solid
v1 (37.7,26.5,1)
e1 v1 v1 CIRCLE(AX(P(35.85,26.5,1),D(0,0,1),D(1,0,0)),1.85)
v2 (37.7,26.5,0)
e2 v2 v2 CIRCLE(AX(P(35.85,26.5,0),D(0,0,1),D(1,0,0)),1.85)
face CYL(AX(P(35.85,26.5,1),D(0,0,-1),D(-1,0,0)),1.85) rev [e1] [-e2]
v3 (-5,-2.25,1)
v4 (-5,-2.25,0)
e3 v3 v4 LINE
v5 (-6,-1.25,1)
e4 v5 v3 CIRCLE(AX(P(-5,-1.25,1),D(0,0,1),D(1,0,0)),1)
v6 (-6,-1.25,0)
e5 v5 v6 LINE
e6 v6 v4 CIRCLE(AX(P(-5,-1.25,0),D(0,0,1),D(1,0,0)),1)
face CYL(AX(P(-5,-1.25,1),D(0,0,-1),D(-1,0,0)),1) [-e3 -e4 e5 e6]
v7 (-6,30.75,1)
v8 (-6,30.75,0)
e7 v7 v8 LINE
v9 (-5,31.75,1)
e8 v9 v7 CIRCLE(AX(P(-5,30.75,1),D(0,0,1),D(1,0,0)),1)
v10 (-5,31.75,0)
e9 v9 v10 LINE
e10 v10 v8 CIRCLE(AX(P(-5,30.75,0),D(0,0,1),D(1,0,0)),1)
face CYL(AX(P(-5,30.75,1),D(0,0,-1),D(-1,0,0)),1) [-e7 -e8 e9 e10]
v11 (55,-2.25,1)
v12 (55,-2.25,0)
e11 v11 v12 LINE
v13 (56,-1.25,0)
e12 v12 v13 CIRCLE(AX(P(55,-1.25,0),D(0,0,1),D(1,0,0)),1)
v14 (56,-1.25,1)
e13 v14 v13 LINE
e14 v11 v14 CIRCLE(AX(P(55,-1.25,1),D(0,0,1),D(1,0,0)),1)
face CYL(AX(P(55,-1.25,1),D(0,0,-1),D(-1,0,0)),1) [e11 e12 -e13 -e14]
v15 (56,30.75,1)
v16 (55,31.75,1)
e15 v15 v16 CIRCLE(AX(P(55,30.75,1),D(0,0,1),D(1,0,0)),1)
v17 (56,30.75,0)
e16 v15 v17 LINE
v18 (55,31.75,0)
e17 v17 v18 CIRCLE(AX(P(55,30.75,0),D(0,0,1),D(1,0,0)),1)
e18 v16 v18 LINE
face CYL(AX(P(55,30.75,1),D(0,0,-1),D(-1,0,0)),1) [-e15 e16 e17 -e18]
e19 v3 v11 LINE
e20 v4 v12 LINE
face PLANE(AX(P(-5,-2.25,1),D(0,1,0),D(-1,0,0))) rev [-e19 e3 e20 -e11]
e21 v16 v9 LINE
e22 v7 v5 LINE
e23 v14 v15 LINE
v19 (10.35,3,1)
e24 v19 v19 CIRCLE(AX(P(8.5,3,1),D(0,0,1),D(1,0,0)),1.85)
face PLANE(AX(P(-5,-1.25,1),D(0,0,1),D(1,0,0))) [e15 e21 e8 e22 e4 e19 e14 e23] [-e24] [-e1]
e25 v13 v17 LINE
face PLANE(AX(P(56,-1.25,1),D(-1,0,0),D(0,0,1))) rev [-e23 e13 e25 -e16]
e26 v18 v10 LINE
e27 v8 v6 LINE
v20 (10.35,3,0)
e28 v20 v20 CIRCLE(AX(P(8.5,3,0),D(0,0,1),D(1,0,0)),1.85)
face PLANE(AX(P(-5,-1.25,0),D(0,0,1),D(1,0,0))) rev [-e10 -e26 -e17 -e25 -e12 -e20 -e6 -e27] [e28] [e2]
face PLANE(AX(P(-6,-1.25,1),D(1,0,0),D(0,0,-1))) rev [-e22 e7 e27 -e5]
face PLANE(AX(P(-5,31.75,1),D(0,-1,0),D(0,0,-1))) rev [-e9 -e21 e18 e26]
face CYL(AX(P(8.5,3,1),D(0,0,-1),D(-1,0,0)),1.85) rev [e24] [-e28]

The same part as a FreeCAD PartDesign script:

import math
import FreeCAD as App
import Part
import Sketcher

doc = App.newDocument("Part")
body = doc.addObject("PartDesign::Body", "Body")

# Sketch on XY plane
sketch1 = body.newObject("Sketcher::SketchObject", "Sketch")
sketch1.AttachmentSupport = (doc.getObject("XY_Plane"), [""])
sketch1.MapMode = "FlatFace"
sketch1.addGeometry(Part.LineSegment(App.Vector(55, 31.8, 0), App.Vector(-5, 31.8, 0)), False)
sketch1.addGeometry(Part.ArcOfCircle(Part.Circle(App.Vector(-5, 30.7, 0), App.Vector(0, 0, 1), 1), math.radians(90), math.radians(180)), False)
sketch1.addGeometry(Part.LineSegment(App.Vector(-6, 30.8, 0), App.Vector(-6, -1.2, 0)), False)
sketch1.addGeometry(Part.ArcOfCircle(Part.Circle(App.Vector(-5, -1.2, 0), App.Vector(0, 0, 1), 1), math.radians(-180), math.radians(-90)), False)
sketch1.addGeometry(Part.LineSegment(App.Vector(-5, -2.2, 0), App.Vector(55, -2.2, 0)), False)
sketch1.addGeometry(Part.ArcOfCircle(Part.Circle(App.Vector(55, -1.2, 0), App.Vector(0, 0, 1), 1), math.radians(-90), math.radians(0)), False)
sketch1.addGeometry(Part.LineSegment(App.Vector(56, -1.2, 0), App.Vector(56, 30.8, 0)), False)
sketch1.addGeometry(Part.ArcOfCircle(Part.Circle(App.Vector(55, 30.7, 0), App.Vector(0, 0, 1), 1), math.radians(0), math.radians(90)), False)
sketch1.addGeometry(Part.Circle(App.Vector(8.5, 3, 0), App.Vector(0, 0, 1), 1.9), False)
sketch1.addGeometry(Part.Circle(App.Vector(35.9, 26.5, 0), App.Vector(0, 0, 1), 1.9), False)
sketch1.addConstraint(Sketcher.Constraint("Tangent", 0, 2, 1, 1))
sketch1.addConstraint(Sketcher.Constraint("Tangent", 1, 2, 2, 1))
sketch1.addConstraint(Sketcher.Constraint("Tangent", 2, 2, 3, 1))
sketch1.addConstraint(Sketcher.Constraint("Tangent", 3, 2, 4, 1))
sketch1.addConstraint(Sketcher.Constraint("Tangent", 4, 2, 5, 1))
sketch1.addConstraint(Sketcher.Constraint("Tangent", 5, 2, 6, 1))
sketch1.addConstraint(Sketcher.Constraint("Tangent", 6, 2, 7, 1))
sketch1.addConstraint(Sketcher.Constraint("Tangent", 7, 2, 0, 1))
sketch1.addConstraint(Sketcher.Constraint("Horizontal", 0))
sketch1.addConstraint(Sketcher.Constraint("Vertical", 2))
sketch1.addConstraint(Sketcher.Constraint("Horizontal", 4))
sketch1.addConstraint(Sketcher.Constraint("Vertical", 6))
sketch1.addConstraint(Sketcher.Constraint("Equal", 1, 3))
sketch1.addConstraint(Sketcher.Constraint("Equal", 3, 5))
sketch1.addConstraint(Sketcher.Constraint("Equal", 5, 7))
sketch1.addConstraint(Sketcher.Constraint("Equal", 8, 9))
sketch1.addConstraint(Sketcher.Constraint("Radius", 1, 1.0))
sketch1.addConstraint(Sketcher.Constraint("Diameter", 8, 3.7))
sketch1.addConstraint(Sketcher.Constraint("DistanceX", 0, 2, 0, 1, 60.0))
sketch1.addConstraint(Sketcher.Constraint("DistanceY", 2, 2, 2, 1, 32.0))
sketch1.addConstraint(Sketcher.Constraint("DistanceX", 1, 3, -1, 1, 5.0))
sketch1.addConstraint(Sketcher.Constraint("DistanceY", -1, 1, 8, 3, 3.0))
sketch1.addConstraint(Sketcher.Constraint("DistanceX", -1, 1, 8, 3, 8.5))
sketch1.addConstraint(Sketcher.Constraint("DistanceY", -1, 1, 9, 3, 26.5))
sketch1.addConstraint(Sketcher.Constraint("DistanceY", -1, 1, 1, 3, 30.75))
sketch1.addConstraint(Sketcher.Constraint("DistanceX", -1, 1, 9, 3, 35.85))
pad1 = body.newObject("PartDesign::Pad", "Pad")
pad1.Profile = sketch1
pad1.Length = 1

doc.recompute()
